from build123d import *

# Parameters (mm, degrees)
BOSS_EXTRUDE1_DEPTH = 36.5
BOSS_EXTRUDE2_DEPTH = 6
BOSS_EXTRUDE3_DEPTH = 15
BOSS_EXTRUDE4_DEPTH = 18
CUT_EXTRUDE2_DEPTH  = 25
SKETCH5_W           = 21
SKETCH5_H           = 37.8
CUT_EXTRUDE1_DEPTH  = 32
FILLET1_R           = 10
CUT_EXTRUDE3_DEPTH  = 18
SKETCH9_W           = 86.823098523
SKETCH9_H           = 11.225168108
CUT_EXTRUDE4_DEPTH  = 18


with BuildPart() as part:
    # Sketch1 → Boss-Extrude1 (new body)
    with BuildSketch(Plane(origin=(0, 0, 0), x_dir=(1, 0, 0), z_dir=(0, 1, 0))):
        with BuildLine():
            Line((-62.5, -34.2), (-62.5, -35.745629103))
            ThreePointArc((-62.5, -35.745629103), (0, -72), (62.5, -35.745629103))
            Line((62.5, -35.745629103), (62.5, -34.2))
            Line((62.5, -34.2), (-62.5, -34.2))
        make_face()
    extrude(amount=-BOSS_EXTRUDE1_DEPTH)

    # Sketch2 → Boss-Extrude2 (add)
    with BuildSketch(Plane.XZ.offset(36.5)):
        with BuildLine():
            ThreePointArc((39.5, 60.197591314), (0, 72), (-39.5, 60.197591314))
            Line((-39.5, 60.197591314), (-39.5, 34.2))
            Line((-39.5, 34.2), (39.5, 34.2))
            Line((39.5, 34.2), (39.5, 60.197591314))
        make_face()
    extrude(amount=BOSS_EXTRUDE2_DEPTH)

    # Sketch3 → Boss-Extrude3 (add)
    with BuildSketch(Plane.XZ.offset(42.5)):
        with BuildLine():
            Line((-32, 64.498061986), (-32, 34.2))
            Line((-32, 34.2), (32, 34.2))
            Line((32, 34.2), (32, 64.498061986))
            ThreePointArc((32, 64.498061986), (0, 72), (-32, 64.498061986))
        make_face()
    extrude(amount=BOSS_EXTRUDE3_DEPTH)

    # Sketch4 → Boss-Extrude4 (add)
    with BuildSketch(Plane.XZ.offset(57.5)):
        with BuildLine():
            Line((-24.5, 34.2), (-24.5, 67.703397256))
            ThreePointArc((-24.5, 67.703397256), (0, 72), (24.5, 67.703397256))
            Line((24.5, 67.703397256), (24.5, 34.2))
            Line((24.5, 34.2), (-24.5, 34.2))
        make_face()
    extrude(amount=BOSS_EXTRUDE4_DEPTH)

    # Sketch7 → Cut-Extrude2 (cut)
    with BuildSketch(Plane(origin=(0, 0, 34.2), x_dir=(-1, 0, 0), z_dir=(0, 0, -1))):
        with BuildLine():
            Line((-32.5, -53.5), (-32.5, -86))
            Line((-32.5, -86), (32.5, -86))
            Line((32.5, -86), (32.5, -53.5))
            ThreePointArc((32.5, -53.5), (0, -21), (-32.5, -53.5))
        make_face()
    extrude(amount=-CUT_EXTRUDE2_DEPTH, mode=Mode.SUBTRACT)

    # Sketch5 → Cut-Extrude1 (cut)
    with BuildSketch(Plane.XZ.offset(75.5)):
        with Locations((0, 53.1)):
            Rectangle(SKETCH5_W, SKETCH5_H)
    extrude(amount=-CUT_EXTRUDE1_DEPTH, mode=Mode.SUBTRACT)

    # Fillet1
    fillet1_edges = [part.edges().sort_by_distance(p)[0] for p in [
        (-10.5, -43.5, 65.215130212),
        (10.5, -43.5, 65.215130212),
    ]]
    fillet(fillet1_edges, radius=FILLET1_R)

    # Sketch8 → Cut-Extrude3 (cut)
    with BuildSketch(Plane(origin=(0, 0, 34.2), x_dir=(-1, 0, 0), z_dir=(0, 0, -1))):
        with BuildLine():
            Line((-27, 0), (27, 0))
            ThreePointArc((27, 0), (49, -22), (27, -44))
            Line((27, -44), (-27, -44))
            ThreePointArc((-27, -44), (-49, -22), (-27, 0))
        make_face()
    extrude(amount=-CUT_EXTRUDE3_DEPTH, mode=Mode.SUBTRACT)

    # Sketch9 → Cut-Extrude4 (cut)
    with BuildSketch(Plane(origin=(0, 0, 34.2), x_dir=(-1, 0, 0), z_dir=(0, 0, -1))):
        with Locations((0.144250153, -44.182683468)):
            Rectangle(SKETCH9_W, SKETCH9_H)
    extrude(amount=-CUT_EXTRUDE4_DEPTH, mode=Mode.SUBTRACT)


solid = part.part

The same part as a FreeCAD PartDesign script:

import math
import FreeCAD as App
import Part
import Sketcher


def edges_at(feature, points):
    """Names of the edges that pass closest to the given points."""
    edges = feature.Shape.Edges
    near = lambda p: min(range(len(edges)), key=lambda i: edges[i].distToShape(Part.Vertex(*p))[0])
    return sorted({f"Edge{near(p) + 1}" for p in points})

doc = App.newDocument("Part")
params = doc.addObject("Spreadsheet::Sheet", "Params")
for row, (alias, value) in enumerate([
    ("sketch1_radius", "72 mm"),
    ("sketch1_width", "125 mm"),
    ("pad1_length", "36.5 mm"),
    ("sketch2_radius", "72 mm"),
    ("sketch2_width", "79 mm"),
    ("pad2_length", "6 mm"),
    ("sketch3_radius", "72 mm"),
    ("sketch3_width", "64 mm"),
    ("pad3_length", "15 mm"),
    ("sketch4_radius", "72 mm"),
    ("sketch4_width", "49 mm"),
    ("pad4_length", "18 mm"),
    ("sketch5_radius", "32.5 mm"),
    ("sketch5_height", "32.5 mm"),
    ("pocket1_length", "25 mm"),
    ("sketch6_width", "21 mm"),
    ("sketch6_height", "37.8 mm"),
    ("pocket2_length", "32 mm"),
    ("fillet_radius", "10 mm"),
    ("sketch7_radius", "22 mm"),
    ("sketch7_width", "54 mm"),
    ("pocket3_length", "18 mm"),
    ("pocket4_length", "18 mm"),
], start=1):
    params.set(f"A{row}", alias)
    params.set(f"B{row}", "=" + value)
    params.setAlias(f"B{row}", alias)

body = doc.addObject("PartDesign::Body", "Body")

# Sketch on XZ plane
sketch1 = body.newObject("Sketcher::SketchObject", "Sketch")
sketch1.AttachmentSupport = (doc.getObject("XZ_Plane"), [""])
sketch1.MapMode = "FlatFace"
sketch1.addGeometry(Part.LineSegment(App.Vector(-62.5, 34.2, 0), App.Vector(-62.5, 35.7, 0)), False)
sketch1.addGeometry(Part.ArcOfCircle(Part.Circle(App.Vector(0, 0, 0), App.Vector(0, 0, 1), 72), math.radians(30), math.radians(150)), False)
sketch1.addGeometry(Part.LineSegment(App.Vector(62.5, 35.7, 0), App.Vector(62.5, 34.2, 0)), False)
sketch1.addGeometry(Part.LineSegment(App.Vector(62.5, 34.2, 0), App.Vector(-62.5, 34.2, 0)), False)
sketch1.addConstraint(Sketcher.Constraint("Coincident", 0, 2, 1, 2))
sketch1.addConstraint(Sketcher.Constraint("Coincident", 1, 1, 2, 1))
sketch1.addConstraint(Sketcher.Constraint("Coincident", 2, 2, 3, 1))
sketch1.addConstraint(Sketcher.Constraint("Coincident", 3, 2, 0, 1))
sketch1.addConstraint(Sketcher.Constraint("Vertical", 0))
sketch1.addConstraint(Sketcher.Constraint("Vertical", 2))
sketch1.addConstraint(Sketcher.Constraint("Horizontal", 3))
sketch1.addConstraint(Sketcher.Constraint("Coincident", 1, 3, -1, 1))
sketch1.addConstraint(Sketcher.Constraint("Horizontal", 0, 2, 1, 1))
sketch1.addConstraint(Sketcher.Constraint("Radius", 1, 72.0))
sketch1.addConstraint(Sketcher.Constraint("DistanceX", 3, 2, 3, 1, 125.0))
sketch1.addConstraint(Sketcher.Constraint("DistanceY", -1, 1, 2, 2, 34.2))
sketch1.setExpression("Constraints[9]", "Params.sketch1_radius")
sketch1.setExpression("Constraints[10]", "Params.sketch1_width")
pad1 = body.newObject("PartDesign::Pad", "Pad")
pad1.Profile = sketch1
pad1.setExpression("Length", "Params.pad1_length")

# Sketch on XZ plane
sketch2 = body.newObject("Sketcher::SketchObject", "Sketch001")
sketch2.AttachmentSupport = (doc.getObject("XZ_Plane"), [""])
sketch2.MapMode = "FlatFace"
sketch2.AttachmentOffset = App.Placement(App.Vector(0, 0, 36.5), App.Rotation())
sketch2.addGeometry(Part.ArcOfCircle(Part.Circle(App.Vector(0, 0, 0), App.Vector(0, 0, 1), 72), math.radians(57), math.radians(123)), False)
sketch2.addGeometry(Part.LineSegment(App.Vector(-40, 60, 0), App.Vector(-40, 34, 0)), False)
sketch2.addGeometry(Part.LineSegment(App.Vector(-40, 34, 0), App.Vector(40, 34, 0)), False)
sketch2.addGeometry(Part.LineSegment(App.Vector(40, 34, 0), App.Vector(40, 60, 0)), False)
sketch2.addConstraint(Sketcher.Constraint("Coincident", 0, 2, 1, 1))
sketch2.addConstraint(Sketcher.Constraint("Coincident", 1, 2, 2, 1))
sketch2.addConstraint(Sketcher.Constraint("Coincident", 2, 2, 3, 1))
sketch2.addConstraint(Sketcher.Constraint("Coincident", 3, 2, 0, 1))
sketch2.addConstraint(Sketcher.Constraint("Vertical", 1))
sketch2.addConstraint(Sketcher.Constraint("Horizontal", 2))
sketch2.addConstraint(Sketcher.Constraint("Vertical", 3))
sketch2.addConstraint(Sketcher.Constraint("Coincident", 0, 3, -1, 1))
sketch2.addConstraint(Sketcher.Constraint("Horizontal", 0, 2, 3, 2))
sketch2.addConstraint(Sketcher.Constraint("Radius", 0, 72.0))
sketch2.addConstraint(Sketcher.Constraint("DistanceX", 2, 1, 2, 2, 79.0))
sketch2.addConstraint(Sketcher.Constraint("DistanceY", -1, 1, 1, 2, 34.2))
sketch2.setExpression("Constraints[9]", "Params.sketch2_radius")
sketch2.setExpression("Constraints[10]", "Params.sketch2_width")
pad2 = body.newObject("PartDesign::Pad", "Pad001")
pad2.Profile = sketch2
pad2.setExpression("Length", "Params.pad2_length")

# Sketch on XZ plane
sketch3 = body.newObject("Sketcher::SketchObject", "Sketch002")
sketch3.AttachmentSupport = (doc.getObject("XZ_Plane"), [""])
sketch3.MapMode = "FlatFace"
sketch3.AttachmentOffset = App.Placement(App.Vector(0, 0, 42.5), App.Rotation())
sketch3.addGeometry(Part.LineSegment(App.Vector(-32, 64, 0), App.Vector(-32, 34, 0)), False)
sketch3.addGeometry(Part.LineSegment(App.Vector(-32, 34, 0), App.Vector(32, 34, 0)), False)
sketch3.addGeometry(Part.LineSegment(App.Vector(32, 34, 0), App.Vector(32, 64, 0)), False)
sketch3.addGeometry(Part.ArcOfCircle(Part.Circle(App.Vector(0, 0, 0), App.Vector(0, 0, 1), 72), math.radians(64), math.radians(116)), False)
sketch3.addConstraint(Sketcher.Constraint("Coincident", 0, 2, 1, 1))
sketch3.addConstraint(Sketcher.Constraint("Coincident", 1, 2, 2, 1))
sketch3.addConstraint(Sketcher.Constraint("Coincident", 2, 2, 3, 1))
sketch3.addConstraint(Sketcher.Constraint("Coincident", 3, 2, 0, 1))
sketch3.addConstraint(Sketcher.Constraint("Vertical", 0))
sketch3.addConstraint(Sketcher.Constraint("Horizontal", 1))
sketch3.addConstraint(Sketcher.Constraint("Vertical", 2))
sketch3.addConstraint(Sketcher.Constraint("Coincident", 3, 3, -1, 1))
sketch3.addConstraint(Sketcher.Constraint("Horizontal", 2, 2, 3, 2))
sketch3.addConstraint(Sketcher.Constraint("Radius", 3, 72.0))
sketch3.addConstraint(Sketcher.Constraint("DistanceX", 1, 1, 1, 2, 64.0))
sketch3.addConstraint(Sketcher.Constraint("DistanceY", -1, 1, 0, 2, 34.2))
sketch3.setExpression("Constraints[9]", "Params.sketch3_radius")
sketch3.setExpression("Constraints[10]", "Params.sketch3_width")
pad3 = body.newObject("PartDesign::Pad", "Pad002")
pad3.Profile = sketch3
pad3.setExpression("Length", "Params.pad3_length")

# Sketch on XZ plane
sketch4 = body.newObject("Sketcher::SketchObject", "Sketch003")
sketch4.AttachmentSupport = (doc.getObject("XZ_Plane"), [""])
sketch4.MapMode = "FlatFace"
sketch4.AttachmentOffset = App.Placement(App.Vector(0, 0, 57.5), App.Rotation())
sketch4.addGeometry(Part.LineSegment(App.Vector(-24, 68, 0), App.Vector(-24, 34, 0)), False)
sketch4.addGeometry(Part.LineSegment(App.Vector(-24, 34, 0), App.Vector(24, 34, 0)), False)
sketch4.addGeometry(Part.LineSegment(App.Vector(24, 34, 0), App.Vector(24, 68, 0)), False)
sketch4.addGeometry(Part.ArcOfCircle(Part.Circle(App.Vector(0, 0, 0), App.Vector(0, 0, 1), 72), math.radians(70), math.radians(110)), False)
sketch4.addConstraint(Sketcher.Constraint("Coincident", 0, 2, 1, 1))
sketch4.addConstraint(Sketcher.Constraint("Coincident", 1, 2, 2, 1))
sketch4.addConstraint(Sketcher.Constraint("Coincident", 2, 2, 3, 1))
sketch4.addConstraint(Sketcher.Constraint("Coincident", 3, 2, 0, 1))
sketch4.addConstraint(Sketcher.Constraint("Vertical", 0))
sketch4.addConstraint(Sketcher.Constraint("Horizontal", 1))
sketch4.addConstraint(Sketcher.Constraint("Vertical", 2))
sketch4.addConstraint(Sketcher.Constraint("Coincident", 3, 3, -1, 1))
sketch4.addConstraint(Sketcher.Constraint("Horizontal", 2, 2, 3, 2))
sketch4.addConstraint(Sketcher.Constraint("Radius", 3, 72.0))
sketch4.addConstraint(Sketcher.Constraint("DistanceX", 1, 1, 1, 2, 49.0))
sketch4.addConstraint(Sketcher.Constraint("DistanceY", -1, 1, 0, 2, 34.2))
sketch4.setExpression("Constraints[9]", "Params.sketch4_radius")
sketch4.setExpression("Constraints[10]", "Params.sketch4_width")
pad4 = body.newObject("PartDesign::Pad", "Pad003")
pad4.Profile = sketch4
pad4.setExpression("Length", "Params.pad4_length")

# Sketch on XY plane
sketch5 = body.newObject("Sketcher::SketchObject", "Sketch004")
sketch5.AttachmentSupport = (doc.getObject("XY_Plane"), [""])
sketch5.MapMode = "FlatFace"
sketch5.AttachmentOffset = App.Placement(App.Vector(0, 0, 34.2), App.Rotation())
sketch5.addGeometry(Part.LineSegment(App.Vector(32, -54, 0), App.Vector(32, -86, 0)), False)
sketch5.addGeometry(Part.LineSegment(App.Vector(32, -86, 0), App.Vector(-32, -86, 0)), False)
sketch5.addGeometry(Part.LineSegment(App.Vector(-32, -86, 0), App.Vector(-32, -54, 0)), False)
sketch5.addGeometry(Part.ArcOfCircle(Part.Circle(App.Vector(0, -54, 0), App.Vector(0, 0, 1), 32), math.radians(0), math.radians(180)), False)
sketch5.addConstraint(Sketcher.Constraint("Coincident", 0, 2, 1, 1))
sketch5.addConstraint(Sketcher.Constraint("Coincident", 1, 2, 2, 1))
sketch5.addConstraint(Sketcher.Constraint("Tangent", 2, 2, 3, 2))
sketch5.addConstraint(Sketcher.Constraint("Tangent", 3, 1, 0, 1))
sketch5.addConstraint(Sketcher.Constraint("Vertical", 0))
sketch5.addConstraint(Sketcher.Constraint("Horizontal", 1))
sketch5.addConstraint(Sketcher.Constraint("Vertical", 2))
sketch5.addConstraint(Sketcher.Constraint("PointOnObject", 3, 3, -2))
sketch5.addConstraint(Sketcher.Constraint("Radius", 3, 32.5))
sketch5.addConstraint(Sketcher.Constraint("DistanceY", 0, 2, 0, 1, 32.5))
sketch5.addConstraint(Sketcher.Constraint("DistanceY", 0, 2, -1, 1, 86.0))
sketch5.setExpression("Constraints[8]", "Params.sketch5_radius")
sketch5.setExpression("Constraints[9]", "Params.sketch5_height")
pocket1 = body.newObject("PartDesign::Pocket", "Pocket")
pocket1.Profile = sketch5
pocket1.setExpression("Length", "Params.pocket1_length")
pocket1.Reversed = True

# Sketch on XZ plane
sketch6 = body.newObject("Sketcher::SketchObject", "Sketch005")
sketch6.AttachmentSupport = (doc.getObject("XZ_Plane"), [""])
sketch6.MapMode = "FlatFace"
sketch6.AttachmentOffset = App.Placement(App.Vector(0, 0, 75.5), App.Rotation())
sketch6.addGeometry(Part.LineSegment(App.Vector(-10, 72, 0), App.Vector(-10, 34, 0)), False)
sketch6.addGeometry(Part.LineSegment(App.Vector(-10, 34, 0), App.Vector(10, 34, 0)), False)
sketch6.addGeometry(Part.LineSegment(App.Vector(10, 34, 0), App.Vector(10, 72, 0)), False)
sketch6.addGeometry(Part.LineSegment(App.Vector(10, 72, 0), App.Vector(-10, 72, 0)), False)
sketch6.addConstraint(Sketcher.Constraint("Coincident", 0, 2, 1, 1))
sketch6.addConstraint(Sketcher.Constraint("Coincident", 1, 2, 2, 1))
sketch6.addConstraint(Sketcher.Constraint("Coincident", 2, 2, 3, 1))
sketch6.addConstraint(Sketcher.Constraint("Coincident", 3, 2, 0, 1))
sketch6.addConstraint(Sketcher.Constraint("Vertical", 0))
sketch6.addConstraint(Sketcher.Constraint("Horizontal", 1))
sketch6.addConstraint(Sketcher.Constraint("Vertical", 2))
sketch6.addConstraint(Sketcher.Constraint("Horizontal", 3))
sketch6.addConstraint(Sketcher.Constraint("DistanceX", 1, 1, 1, 2, 21.0))
sketch6.addConstraint(Sketcher.Constraint("DistanceY", 0, 2, 0, 1, 37.8))
sketch6.addConstraint(Sketcher.Constraint("DistanceY", -1, 1, 2, 2, 72.0))
sketch6.addConstraint(Sketcher.Constraint("DistanceX", 0, 2, -1, 1, 10.5))
sketch6.setExpression("Constraints[8]", "Params.sketch6_width")
sketch6.setExpression("Constraints[9]", "Params.sketch6_height")
pocket2 = body.newObject("PartDesign::Pocket", "Pocket001")
pocket2.Profile = sketch6
pocket2.setExpression("Length", "Params.pocket2_length")
doc.recompute()

fillet = body.newObject("PartDesign::Fillet", "Fillet")
fillet.Base = (pocket2, edges_at(pocket2, [(-10.5, -43.5, 65.215), (10.5, -43.5, 65.215)]))
fillet.setExpression("Radius", "Params.fillet_radius")

# Sketch on XY plane
sketch7 = body.newObject("Sketcher::SketchObject", "Sketch006")
sketch7.AttachmentSupport = (doc.getObject("XY_Plane"), [""])
sketch7.MapMode = "FlatFace"
sketch7.AttachmentOffset = App.Placement(App.Vector(0, 0, 34.2), App.Rotation())
sketch7.addGeometry(Part.LineSegment(App.Vector(-27, 0, 0), App.Vector(27, 0, 0)), False)
sketch7.addGeometry(Part.ArcOfCircle(Part.Circle(App.Vector(27, -22, 0), App.Vector(0, 0, 1), 22), math.radians(-90), math.radians(90)), False)
sketch7.addGeometry(Part.LineSegment(App.Vector(27, -44, 0), App.Vector(-27, -44, 0)), False)
sketch7.addGeometry(Part.ArcOfCircle(Part.Circle(App.Vector(-27, -22, 0), App.Vector(0, 0, 1), 22), math.radians(90), math.radians(270)), False)
sketch7.addConstraint(Sketcher.Constraint("Tangent", 0, 2, 1, 2))
sketch7.addConstraint(Sketcher.Constraint("Tangent", 1, 1, 2, 1))
sketch7.addConstraint(Sketcher.Constraint("Tangent", 2, 2, 3, 2))
sketch7.addConstraint(Sketcher.Constraint("Tangent", 3, 1, 0, 1))
sketch7.addConstraint(Sketcher.Constraint("Horizontal", 0))
sketch7.addConstraint(Sketcher.Constraint("Horizontal", 2))
sketch7.addConstraint(Sketcher.Constraint("Symmetric", 0, 2, 3, 1, -1, 1))
sketch7.addConstraint(Sketcher.Constraint("Radius", 1, 22.0))
sketch7.addConstraint(Sketcher.Constraint("DistanceX", 0, 1, 0, 2, 54.0))
sketch7.setExpression("Constraints[7]", "Params.sketch7_radius")
sketch7.setExpression("Constraints[8]", "Params.sketch7_width")
pocket3 = body.newObject("PartDesign::Pocket", "Pocket002")
pocket3.Profile = sketch7
pocket3.setExpression("Length", "Params.pocket3_length")
pocket3.Reversed = True

# Sketch on XY plane
sketch8 = body.newObject("Sketcher::SketchObject", "Sketch007")
sketch8.AttachmentSupport = (doc.getObject("XY_Plane"), [""])
sketch8.MapMode = "FlatFace"
sketch8.AttachmentOffset = App.Placement(App.Vector(0, 0, 34.2), App.Rotation())
sketch8.addGeometry(Part.LineSegment(App.Vector(43, -39, 0), App.Vector(43, -50, 0)), False)
sketch8.addGeometry(Part.LineSegment(App.Vector(43, -50, 0), App.Vector(-44, -50, 0)), False)
sketch8.addGeometry(Part.LineSegment(App.Vector(-44, -50, 0), App.Vector(-44, -39, 0)), False)
sketch8.addGeometry(Part.LineSegment(App.Vector(-44, -39, 0), App.Vector(43, -39, 0)), False)
sketch8.addConstraint(Sketcher.Constraint("Coincident", 0, 2, 1, 1))
sketch8.addConstraint(Sketcher.Constraint("Coincident", 1, 2, 2, 1))
sketch8.addConstraint(Sketcher.Constraint("Coincident", 2, 2, 3, 1))
sketch8.addConstraint(Sketcher.Constraint("Coincident", 3, 2, 0, 1))
sketch8.addConstraint(Sketcher.Constraint("Vertical", 0))
sketch8.addConstraint(Sketcher.Constraint("Horizontal", 1))
sketch8.addConstraint(Sketcher.Constraint("Vertical", 2))
sketch8.addConstraint(Sketcher.Constraint("Horizontal", 3))
sketch8.addConstraint(Sketcher.Constraint("DistanceX", 1, 2, 1, 1, 86.823099))
sketch8.addConstraint(Sketcher.Constraint("DistanceY", 0, 2, 0, 1, 11.225168))
sketch8.addConstraint(Sketcher.Constraint("DistanceX", -1, 1, 0, 2, 43.267299))
sketch8.addConstraint(Sketcher.Constraint("DistanceY", 2, 2, -1, 1, 38.570099))
pocket4 = body.newObject("PartDesign::Pocket", "Pocket003")
pocket4.Profile = sketch8
pocket4.setExpression("Length", "Params.pocket4_length")
pocket4.Reversed = True

doc.recompute()
